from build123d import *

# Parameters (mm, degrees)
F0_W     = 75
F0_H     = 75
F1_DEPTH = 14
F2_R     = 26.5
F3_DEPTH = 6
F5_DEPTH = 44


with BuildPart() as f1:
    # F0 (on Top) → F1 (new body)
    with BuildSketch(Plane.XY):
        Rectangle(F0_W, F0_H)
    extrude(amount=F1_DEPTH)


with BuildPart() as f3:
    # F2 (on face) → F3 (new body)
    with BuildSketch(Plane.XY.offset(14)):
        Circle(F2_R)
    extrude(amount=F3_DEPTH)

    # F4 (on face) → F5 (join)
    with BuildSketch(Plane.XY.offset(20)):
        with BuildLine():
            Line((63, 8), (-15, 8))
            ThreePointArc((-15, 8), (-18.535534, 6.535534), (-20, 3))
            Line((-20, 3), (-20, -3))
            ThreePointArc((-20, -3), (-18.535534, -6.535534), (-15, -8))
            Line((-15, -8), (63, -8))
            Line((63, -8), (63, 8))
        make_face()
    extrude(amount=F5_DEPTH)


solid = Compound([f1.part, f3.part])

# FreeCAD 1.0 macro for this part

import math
import FreeCAD as App
import Part
import Sketcher
from FreeCAD import Vector
Q = App.Units.Quantity


def add_polygon(sketch, points):
    """Adds a closed chain of lines whose ends are joined by coincident constraints."""
    first, n = sketch.GeometryCount, len(points)
    for a, b in zip(points, points[1:] + points[:1]):
        sketch.addGeometry(Part.LineSegment(App.Vector(*a, 0), App.Vector(*b, 0)), False)
    for i in range(n):
        sketch.addConstraint(Sketcher.Constraint("Coincident", first + i, 2, first + (i + 1) % n, 1))

doc = App.newDocument("Part")
body = doc.addObject("PartDesign::Body", "Body")

sketch1 = body.newObject("Sketcher::SketchObject", "Sketch")
sketch1.AttachmentSupport = (doc.getObject("XY_Plane"), [""])
sketch1.MapMode = "FlatFace"
add_polygon(sketch1, [(-38, 38), (-38, -38), (38, -38), (38, 38)])
sketch1.addConstraint([
    Sketcher.Constraint("Vertical", 0),
    Sketcher.Constraint("Horizontal", 1),
    Sketcher.Constraint("Vertical", 2),
    Sketcher.Constraint("Horizontal", 3),
    Sketcher.Constraint("Symmetric", 0, 2, 2, 2, -1, 1),
    Sketcher.Constraint("Equal", 3, 0),
    Sketcher.Constraint("DistanceX", 1, 1, 1, 2, Q("75 mm")),
])
pad1 = body.newObject("PartDesign::Pad", "Pad")
pad1.Profile = sketch1
pad1.Length = 14
body2 = doc.addObject("PartDesign::Body", "Body001")

sketch2 = body2.newObject("Sketcher::SketchObject", "Sketch001")
sketch2.AttachmentSupport = (doc.getObject("XY_Plane001"), [""])
sketch2.MapMode = "FlatFace"
sketch2.AttachmentOffset = App.Placement(Vector(0, 0, 14), App.Rotation())
sketch2.addGeometry(Part.Circle(Vector(0, 0, 0), Vector(0, 0, 1), 26), False)
sketch2.addConstraint([
    Sketcher.Constraint("Coincident", 0, 3, -1, 1),
    Sketcher.Constraint("Diameter", 0, Q("53 mm")),
])
pad2 = body2.newObject("PartDesign::Pad", "Pad001")
pad2.Profile = sketch2
pad2.Length = 6

sketch3 = body2.newObject("Sketcher::SketchObject", "Sketch002")
sketch3.AttachmentSupport = (doc.getObject("XY_Plane001"), [""])
sketch3.MapMode = "FlatFace"
sketch3.AttachmentOffset = App.Placement(Vector(0, 0, 20), App.Rotation())
sketch3.addGeometry([
    Part.LineSegment(Vector(63, 8, 0), Vector(-15, 8, 0)),
    Part.ArcOfCircle(Part.Circle(Vector(-15, 3, 0), Vector(0, 0, 1), 5), math.radians(90), math.radians(180)),
    Part.LineSegment(Vector(-20, 3, 0), Vector(-20, -3, 0)),
    Part.ArcOfCircle(Part.Circle(Vector(-15, -3, 0), Vector(0, 0, 1), 5), math.radians(180), math.radians(270)),
    Part.LineSegment(Vector(-15, -8, 0), Vector(63, -8, 0)),
    Part.LineSegment(Vector(63, -8, 0), Vector(63, 8, 0)),
], False)
sketch3.addConstraint([
    Sketcher.Constraint("Tangent", 0, 2, 1, 1),
    Sketcher.Constraint("Tangent", 1, 2, 2, 1),
    Sketcher.Constraint("Tangent", 2, 2, 3, 1),
    Sketcher.Constraint("Tangent", 3, 2, 4, 1),
    Sketcher.Constraint("Coincident", 4, 2, 5, 1),
    Sketcher.Constraint("Coincident", 5, 2, 0, 1),
    Sketcher.Constraint("Horizontal", 0),
    Sketcher.Constraint("Vertical", 2),
    Sketcher.Constraint("Horizontal", 4),
    Sketcher.Constraint("Vertical", 5),
    Sketcher.Constraint("Equal", 1, 3),
    Sketcher.Constraint("Radius", 1, Q("5 mm")),
    Sketcher.Constraint("DistanceX", 0, 2, 0, 1, Q("78 mm")),
    Sketcher.Constraint("DistanceY", 2, 2, 2, 1, Q("6 mm")),
    Sketcher.Constraint("DistanceX", 1, 3, -1, 1, Q("15 mm")),
    Sketcher.Constraint("DistanceY", -1, 1, 1, 3, Q("3 mm")),
])
pad3 = body2.newObject("PartDesign::Pad", "Pad002")
pad3.Profile = sketch3
pad3.Length = 44

doc.recompute()
